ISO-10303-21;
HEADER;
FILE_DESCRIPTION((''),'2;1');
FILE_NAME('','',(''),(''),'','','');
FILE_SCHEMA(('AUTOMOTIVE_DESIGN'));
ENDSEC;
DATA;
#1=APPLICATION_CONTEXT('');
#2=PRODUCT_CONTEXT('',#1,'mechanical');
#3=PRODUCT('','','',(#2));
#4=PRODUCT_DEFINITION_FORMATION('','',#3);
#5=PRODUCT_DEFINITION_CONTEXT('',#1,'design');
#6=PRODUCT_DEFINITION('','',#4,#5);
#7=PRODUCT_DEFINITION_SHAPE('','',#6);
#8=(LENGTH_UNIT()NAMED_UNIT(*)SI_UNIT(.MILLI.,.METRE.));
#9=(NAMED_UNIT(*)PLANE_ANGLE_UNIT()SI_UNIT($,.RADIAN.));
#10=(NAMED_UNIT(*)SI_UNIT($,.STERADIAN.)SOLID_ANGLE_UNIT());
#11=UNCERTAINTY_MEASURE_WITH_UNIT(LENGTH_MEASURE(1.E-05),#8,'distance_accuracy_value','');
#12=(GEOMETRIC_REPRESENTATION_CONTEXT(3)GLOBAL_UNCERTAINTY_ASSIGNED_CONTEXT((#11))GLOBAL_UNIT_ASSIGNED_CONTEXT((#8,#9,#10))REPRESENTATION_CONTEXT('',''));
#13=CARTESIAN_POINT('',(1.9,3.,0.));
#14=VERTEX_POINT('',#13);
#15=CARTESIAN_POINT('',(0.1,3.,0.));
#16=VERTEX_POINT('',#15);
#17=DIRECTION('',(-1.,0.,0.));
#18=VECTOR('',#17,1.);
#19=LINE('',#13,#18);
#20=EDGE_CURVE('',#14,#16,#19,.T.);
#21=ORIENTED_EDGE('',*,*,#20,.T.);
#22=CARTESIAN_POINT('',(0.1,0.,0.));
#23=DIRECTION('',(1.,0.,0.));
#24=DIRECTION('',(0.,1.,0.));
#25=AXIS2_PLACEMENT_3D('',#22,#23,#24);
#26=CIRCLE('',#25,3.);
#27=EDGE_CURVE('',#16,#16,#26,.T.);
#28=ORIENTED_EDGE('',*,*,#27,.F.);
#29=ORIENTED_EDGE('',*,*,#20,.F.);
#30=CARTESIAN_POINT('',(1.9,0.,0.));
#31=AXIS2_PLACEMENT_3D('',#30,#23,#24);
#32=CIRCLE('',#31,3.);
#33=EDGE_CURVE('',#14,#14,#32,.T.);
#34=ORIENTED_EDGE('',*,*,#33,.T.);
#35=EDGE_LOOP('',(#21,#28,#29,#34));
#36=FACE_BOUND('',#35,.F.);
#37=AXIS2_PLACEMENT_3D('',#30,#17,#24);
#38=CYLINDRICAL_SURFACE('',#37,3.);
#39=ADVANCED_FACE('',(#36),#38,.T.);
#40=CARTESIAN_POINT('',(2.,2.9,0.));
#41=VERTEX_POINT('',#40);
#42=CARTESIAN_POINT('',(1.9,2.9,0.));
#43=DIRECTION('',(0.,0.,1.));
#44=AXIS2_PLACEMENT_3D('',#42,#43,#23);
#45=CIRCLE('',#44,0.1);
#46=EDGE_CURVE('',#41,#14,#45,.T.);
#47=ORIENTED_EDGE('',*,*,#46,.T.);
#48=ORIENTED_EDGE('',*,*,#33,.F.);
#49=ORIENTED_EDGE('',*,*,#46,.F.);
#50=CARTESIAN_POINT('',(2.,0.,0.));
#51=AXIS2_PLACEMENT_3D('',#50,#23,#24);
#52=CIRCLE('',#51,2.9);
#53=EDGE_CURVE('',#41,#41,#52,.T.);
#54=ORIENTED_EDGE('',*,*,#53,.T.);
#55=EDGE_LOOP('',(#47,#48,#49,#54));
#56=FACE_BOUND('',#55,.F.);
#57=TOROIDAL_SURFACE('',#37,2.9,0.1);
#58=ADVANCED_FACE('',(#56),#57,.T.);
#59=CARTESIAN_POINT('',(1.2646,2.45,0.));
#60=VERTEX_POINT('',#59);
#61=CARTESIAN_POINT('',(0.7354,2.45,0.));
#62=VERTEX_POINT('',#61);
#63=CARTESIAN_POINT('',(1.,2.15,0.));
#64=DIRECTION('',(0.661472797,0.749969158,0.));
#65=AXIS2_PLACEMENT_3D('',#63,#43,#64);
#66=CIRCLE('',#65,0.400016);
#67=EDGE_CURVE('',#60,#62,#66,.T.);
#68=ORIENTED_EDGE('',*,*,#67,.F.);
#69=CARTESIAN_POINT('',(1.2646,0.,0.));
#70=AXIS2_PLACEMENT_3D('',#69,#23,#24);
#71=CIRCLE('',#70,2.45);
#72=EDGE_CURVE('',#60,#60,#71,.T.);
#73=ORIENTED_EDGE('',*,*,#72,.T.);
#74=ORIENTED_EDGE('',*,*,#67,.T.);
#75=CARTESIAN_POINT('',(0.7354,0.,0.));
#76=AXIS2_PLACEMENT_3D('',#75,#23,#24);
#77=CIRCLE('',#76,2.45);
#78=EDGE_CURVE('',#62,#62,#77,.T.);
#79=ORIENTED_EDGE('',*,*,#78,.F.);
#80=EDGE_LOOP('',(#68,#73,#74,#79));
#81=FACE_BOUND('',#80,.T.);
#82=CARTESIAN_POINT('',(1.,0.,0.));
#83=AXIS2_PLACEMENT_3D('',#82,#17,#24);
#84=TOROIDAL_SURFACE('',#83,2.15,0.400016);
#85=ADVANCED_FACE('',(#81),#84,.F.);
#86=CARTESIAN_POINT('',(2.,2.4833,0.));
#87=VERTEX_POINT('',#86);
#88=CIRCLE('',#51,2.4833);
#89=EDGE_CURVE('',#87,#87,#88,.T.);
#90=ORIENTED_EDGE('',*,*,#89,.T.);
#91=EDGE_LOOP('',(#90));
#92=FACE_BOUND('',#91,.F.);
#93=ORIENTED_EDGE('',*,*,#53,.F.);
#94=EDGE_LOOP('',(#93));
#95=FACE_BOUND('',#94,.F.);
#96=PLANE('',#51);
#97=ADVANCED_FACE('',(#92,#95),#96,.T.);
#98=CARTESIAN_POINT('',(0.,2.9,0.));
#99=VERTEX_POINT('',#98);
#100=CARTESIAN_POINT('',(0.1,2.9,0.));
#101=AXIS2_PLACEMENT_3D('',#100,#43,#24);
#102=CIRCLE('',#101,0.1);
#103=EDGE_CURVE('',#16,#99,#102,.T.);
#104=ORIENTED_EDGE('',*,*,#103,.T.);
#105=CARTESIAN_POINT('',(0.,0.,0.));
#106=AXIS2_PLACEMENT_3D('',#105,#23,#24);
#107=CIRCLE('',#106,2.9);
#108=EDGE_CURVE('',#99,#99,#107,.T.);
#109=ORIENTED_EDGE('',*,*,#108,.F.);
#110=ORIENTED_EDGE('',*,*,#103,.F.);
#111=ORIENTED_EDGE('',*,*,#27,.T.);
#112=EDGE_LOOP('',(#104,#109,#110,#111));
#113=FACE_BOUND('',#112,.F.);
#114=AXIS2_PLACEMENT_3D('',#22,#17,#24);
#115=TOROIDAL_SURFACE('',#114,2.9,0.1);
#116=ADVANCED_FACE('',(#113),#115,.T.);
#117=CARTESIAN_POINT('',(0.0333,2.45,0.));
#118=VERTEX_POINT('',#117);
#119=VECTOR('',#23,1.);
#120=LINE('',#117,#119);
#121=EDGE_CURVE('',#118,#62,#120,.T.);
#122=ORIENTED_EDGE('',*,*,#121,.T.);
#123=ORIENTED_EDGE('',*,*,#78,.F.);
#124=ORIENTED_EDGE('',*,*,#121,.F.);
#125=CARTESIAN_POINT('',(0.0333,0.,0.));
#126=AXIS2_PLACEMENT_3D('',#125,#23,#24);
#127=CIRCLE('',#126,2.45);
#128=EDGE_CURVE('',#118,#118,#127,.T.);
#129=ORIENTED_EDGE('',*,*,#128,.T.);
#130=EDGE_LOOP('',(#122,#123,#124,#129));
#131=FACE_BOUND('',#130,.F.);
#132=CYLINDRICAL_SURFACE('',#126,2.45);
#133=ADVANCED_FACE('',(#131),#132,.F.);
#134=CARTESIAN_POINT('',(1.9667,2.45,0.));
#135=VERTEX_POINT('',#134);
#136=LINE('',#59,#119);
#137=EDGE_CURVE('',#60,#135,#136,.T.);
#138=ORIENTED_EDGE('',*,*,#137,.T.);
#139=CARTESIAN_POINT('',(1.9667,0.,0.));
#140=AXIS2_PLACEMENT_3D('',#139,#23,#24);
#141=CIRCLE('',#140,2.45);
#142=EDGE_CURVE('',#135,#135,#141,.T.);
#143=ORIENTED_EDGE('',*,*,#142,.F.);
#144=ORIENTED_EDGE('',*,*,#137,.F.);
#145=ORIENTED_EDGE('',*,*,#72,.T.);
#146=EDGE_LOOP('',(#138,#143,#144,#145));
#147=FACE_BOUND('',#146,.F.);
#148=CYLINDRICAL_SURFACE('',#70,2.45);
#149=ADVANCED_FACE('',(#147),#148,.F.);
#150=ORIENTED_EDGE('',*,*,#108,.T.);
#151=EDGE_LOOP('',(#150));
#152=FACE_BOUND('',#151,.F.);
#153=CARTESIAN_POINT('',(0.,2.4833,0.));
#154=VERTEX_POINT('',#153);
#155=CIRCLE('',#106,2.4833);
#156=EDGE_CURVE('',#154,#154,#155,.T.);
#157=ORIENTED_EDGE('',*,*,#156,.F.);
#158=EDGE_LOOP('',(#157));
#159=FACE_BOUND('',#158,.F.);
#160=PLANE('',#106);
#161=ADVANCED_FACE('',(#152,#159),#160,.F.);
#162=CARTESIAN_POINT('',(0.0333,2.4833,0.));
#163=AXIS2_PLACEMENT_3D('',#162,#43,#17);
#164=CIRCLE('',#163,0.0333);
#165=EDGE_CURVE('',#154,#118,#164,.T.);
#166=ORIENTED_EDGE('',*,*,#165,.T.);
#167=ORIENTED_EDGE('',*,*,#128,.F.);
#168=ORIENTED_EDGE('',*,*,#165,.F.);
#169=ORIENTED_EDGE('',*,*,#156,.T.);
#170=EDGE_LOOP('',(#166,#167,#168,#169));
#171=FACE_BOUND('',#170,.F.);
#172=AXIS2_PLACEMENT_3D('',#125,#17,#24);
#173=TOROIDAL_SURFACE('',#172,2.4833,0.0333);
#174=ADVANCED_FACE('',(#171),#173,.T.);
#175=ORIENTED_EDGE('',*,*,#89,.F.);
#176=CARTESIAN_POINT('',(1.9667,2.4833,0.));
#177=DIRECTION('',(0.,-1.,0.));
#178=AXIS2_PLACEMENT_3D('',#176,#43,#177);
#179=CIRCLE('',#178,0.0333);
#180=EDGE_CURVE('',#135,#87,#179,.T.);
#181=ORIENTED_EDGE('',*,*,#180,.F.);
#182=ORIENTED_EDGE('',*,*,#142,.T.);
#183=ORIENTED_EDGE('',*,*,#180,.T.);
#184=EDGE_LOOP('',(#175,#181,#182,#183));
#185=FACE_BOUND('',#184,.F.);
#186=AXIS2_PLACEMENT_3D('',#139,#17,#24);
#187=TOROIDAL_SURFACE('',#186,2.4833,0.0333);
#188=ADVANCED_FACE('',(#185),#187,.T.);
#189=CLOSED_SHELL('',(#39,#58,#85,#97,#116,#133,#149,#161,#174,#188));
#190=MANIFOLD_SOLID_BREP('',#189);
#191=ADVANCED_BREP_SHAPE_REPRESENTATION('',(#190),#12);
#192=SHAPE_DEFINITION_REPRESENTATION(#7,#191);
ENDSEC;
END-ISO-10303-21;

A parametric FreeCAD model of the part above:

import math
import FreeCAD as App
import Part
import Sketcher
from FreeCAD import Vector

doc = App.newDocument("Part")
body = doc.addObject("PartDesign::Body", "Body")

sketch1 = body.newObject("Sketcher::SketchObject", "Sketch")
sketch1.AttachmentSupport = (doc.getObject("XY_Plane"), [""])
sketch1.MapMode = "FlatFace"
sketch1.addGeometry(Part.LineSegment(Vector(0, 2.9, 0), Vector(0, 2.4833, 0)), False)
sketch1.addGeometry(Part.ArcOfCircle(Part.Circle(Vector(0.0333, 2.4833, 0), Vector(0, 0, 1), 0.0333), math.radians(180), math.radians(270)), False)
sketch1.addGeometry(Part.LineSegment(Vector(0.0333, 2.45, 0), Vector(0.7354, 2.45, 0)), False)
sketch1.addGeometry(Part.ArcOfCircle(Part.Circle(Vector(1, 2.15, 0), Vector(0, 0, 1), 0.400016), math.radians(48.587706), math.radians(131.412294)), False)
sketch1.addGeometry(Part.LineSegment(Vector(1.2646, 2.45, 0), Vector(1.9667, 2.45, 0)), False)
sketch1.addGeometry(Part.ArcOfCircle(Part.Circle(Vector(1.9667, 2.4833, 0), Vector(0, 0, 1), 0.0333), math.radians(-90), math.radians(0)), False)
sketch1.addGeometry(Part.LineSegment(Vector(2, 2.4833, 0), Vector(2, 2.9, 0)), False)
sketch1.addGeometry(Part.ArcOfCircle(Part.Circle(Vector(1.9, 2.9, 0), Vector(0, 0, 1), 0.1), math.radians(0), math.radians(90)), False)
sketch1.addGeometry(Part.LineSegment(Vector(1.9, 3, 0), Vector(0.1, 3, 0)), False)
sketch1.addGeometry(Part.ArcOfCircle(Part.Circle(Vector(0.1, 2.9, 0), Vector(0, 0, 1), 0.1), math.radians(90), math.radians(180)), False)
sketch1.addConstraint(Sketcher.Constraint("Tangent", 0, 2, 1, 1))
sketch1.addConstraint(Sketcher.Constraint("Tangent", 1, 2, 2, 1))
sketch1.addConstraint(Sketcher.Constraint("Coincident", 2, 2, 3, 2))
sketch1.addConstraint(Sketcher.Constraint("Coincident", 3, 1, 4, 1))
sketch1.addConstraint(Sketcher.Constraint("Tangent", 4, 2, 5, 1))
sketch1.addConstraint(Sketcher.Constraint("Tangent", 5, 2, 6, 1))
sketch1.addConstraint(Sketcher.Constraint("Tangent", 6, 2, 7, 1))
sketch1.addConstraint(Sketcher.Constraint("Tangent", 7, 2, 8, 1))
sketch1.addConstraint(Sketcher.Constraint("Tangent", 8, 2, 9, 1))
sketch1.addConstraint(Sketcher.Constraint("Tangent", 9, 2, 0, 1))
sketch1.addConstraint(Sketcher.Constraint("Vertical", 0))
sketch1.addConstraint(Sketcher.Constraint("Horizontal", 2))
sketch1.addConstraint(Sketcher.Constraint("Horizontal", 4))
sketch1.addConstraint(Sketcher.Constraint("Vertical", 6))
sketch1.addConstraint(Sketcher.Constraint("Horizontal", 8))
sketch1.addConstraint(Sketcher.Constraint("Equal", 1, 5))
sketch1.addConstraint(Sketcher.Constraint("Equal", 7, 9))
sketch1.addConstraint(Sketcher.Constraint("PointOnObject", 0, 2, -2))
sketch1.addConstraint(Sketcher.Constraint("Horizontal", 1, 3, 5, 3))
sketch1.addConstraint(Sketcher.Constraint("Equal", 2, 4))
sketch1.addConstraint(Sketcher.Constraint("Radius", 3, 0.4))
sketch1.addConstraint(Sketcher.Constraint("Radius", 7, 0.1))
sketch1.addConstraint(Sketcher.Constraint("DistanceX", 8, 2, 8, 1, 1.8))
sketch1.addConstraint(Sketcher.Constraint("DistanceY", -1, 1, 7, 2, 3.0))
sketch1.addConstraint(Sketcher.Constraint("Radius", 1, 0.0333))
sketch1.addConstraint(Sketcher.Constraint("DistanceY", 3, 3, 1, 2, 0.3))
sketch1.addConstraint(Sketcher.Constraint("DistanceY", -1, 1, 3, 3, 2.15))
revolution = body.newObject("PartDesign::Revolution", "Revolution")
revolution.Profile = sketch1
revolution.ReferenceAxis = (sketch1, ["H_Axis"])
revolution.Angle = 360

doc.recompute()
